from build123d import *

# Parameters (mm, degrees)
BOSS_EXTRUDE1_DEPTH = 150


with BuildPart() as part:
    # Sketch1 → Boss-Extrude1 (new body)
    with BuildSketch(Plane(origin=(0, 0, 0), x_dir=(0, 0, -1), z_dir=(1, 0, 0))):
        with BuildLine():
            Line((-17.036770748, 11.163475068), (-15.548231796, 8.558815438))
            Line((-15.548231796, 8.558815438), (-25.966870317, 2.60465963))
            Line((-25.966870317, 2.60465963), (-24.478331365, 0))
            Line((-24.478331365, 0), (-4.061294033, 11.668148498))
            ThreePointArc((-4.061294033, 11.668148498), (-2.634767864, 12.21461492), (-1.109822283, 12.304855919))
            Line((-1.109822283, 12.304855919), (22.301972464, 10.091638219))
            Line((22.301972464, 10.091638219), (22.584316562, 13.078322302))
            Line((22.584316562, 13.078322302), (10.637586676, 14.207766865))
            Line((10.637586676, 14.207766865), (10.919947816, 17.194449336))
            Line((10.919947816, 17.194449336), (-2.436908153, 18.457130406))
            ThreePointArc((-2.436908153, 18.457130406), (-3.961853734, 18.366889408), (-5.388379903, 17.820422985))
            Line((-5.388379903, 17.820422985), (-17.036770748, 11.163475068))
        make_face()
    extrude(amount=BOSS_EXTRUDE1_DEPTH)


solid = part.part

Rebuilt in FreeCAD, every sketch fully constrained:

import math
import FreeCAD as App
import Part
import Sketcher

V = App.Vector

doc = App.newDocument("Part")
params = doc.addObject("Spreadsheet::Sheet", "Params")
for row, (alias, value) in enumerate([
    ("sketch1_radius", "5 mm"),
    ("sketch1_length", "3 mm"),
    ("sketch1_length2", "12 mm"),
    ("pad1_length", "150 mm"),
], start=1):
    params.set(f"A{row}", alias)
    params.set(f"B{row}", "=" + value)
    params.setAlias(f"B{row}", alias)

body = doc.addObject("PartDesign::Body", "Body")

# Sketch on YZ plane
sketch1 = body.newObject("Sketcher::SketchObject", "Sketch")
sketch1.AttachmentSupport = (doc.getObject("YZ_Plane"), [""])
sketch1.MapMode = "FlatFace"
sketch1.addGeometry([
    Part.LineSegment(V(11.2, 17, 0), V(8.6, 15.5, 0)),  # 0
    Part.LineSegment(V(8.6, 15.5, 0), V(2.6, 26, 0)),  # 1
    Part.LineSegment(V(2.6, 26, 0), V(0, 24.5, 0)),  # 2
    Part.LineSegment(V(0, 24.5, 0), V(11.7, 4.1, 0)),  # 3
    Part.ArcOfCircle(Part.Circle(V(7.3, 1.6, 0), V(0, 0, 1), 5), math.radians(-5), math.radians(30)),  # 4
    Part.LineSegment(V(12.3, 1.1, 0), V(10.1, -22.3, 0)),  # 5
    Part.LineSegment(V(10.1, -22.3, 0), V(13.1, -22.6, 0)),  # 6
    Part.LineSegment(V(13.1, -22.6, 0), V(14.2, -10.6, 0)),  # 7
    Part.LineSegment(V(14.2, -10.6, 0), V(17.2, -10.9, 0)),  # 8
    Part.LineSegment(V(17.2, -10.9, 0), V(18.5, 2.4, 0)),  # 9
    Part.ArcOfCircle(Part.Circle(V(13.5, 2.9, 0), V(0, 0, 1), 5), math.radians(-5), math.radians(30)),  # 10
    Part.LineSegment(V(17.8, 5.4, 0), V(11.2, 17, 0)),  # 11
], False)
sketch1.addConstraint([
    Sketcher.Constraint("Coincident", 0, 2, 1, 1),
    Sketcher.Constraint("Coincident", 1, 2, 2, 1),
    Sketcher.Constraint("Coincident", 2, 2, 3, 1),
    Sketcher.Constraint("Tangent", 3, 2, 4, 2),
    Sketcher.Constraint("Tangent", 4, 1, 5, 1),
    Sketcher.Constraint("Coincident", 5, 2, 6, 1),
    Sketcher.Constraint("Coincident", 6, 2, 7, 1),
    Sketcher.Constraint("Coincident", 7, 2, 8, 1),
    Sketcher.Constraint("Coincident", 8, 2, 9, 1),
    Sketcher.Constraint("Tangent", 9, 2, 10, 1),
    Sketcher.Constraint("Tangent", 10, 2, 11, 1),
    Sketcher.Constraint("Coincident", 11, 2, 0, 1),
    Sketcher.Constraint("Equal", 4, 10),
    Sketcher.Constraint("PointOnObject", 2, 2, -2),
    Sketcher.Constraint("Perpendicular", 0, 1),
    Sketcher.Constraint("Perpendicular", 1, 2),
    Sketcher.Constraint("Perpendicular", 2, 3),
    Sketcher.Constraint("Perpendicular", 5, 6),
    Sketcher.Constraint("Perpendicular", 7, 8),
    Sketcher.Constraint("Perpendicular", 6, 9),
    Sketcher.Constraint("Parallel", 3, 11),
    Sketcher.Constraint("Equal", 0, 2),
    Sketcher.Constraint("Equal", 2, 6),
    Sketcher.Constraint("Equal", 1, 7),
    Sketcher.Constraint("Equal", 6, 8),
    Sketcher.Constraint("Equal", 9, 11),
    Sketcher.Constraint("Radius", 4, 5.0),
    Sketcher.Constraint("Distance", 0, 3.0),
    Sketcher.Constraint("Distance", 1, 12.0),
    Sketcher.Constraint("DistanceX", 6, 2, 10, 3, 0.401001),
    Sketcher.Constraint("DistanceY", 0, 2, 2, 2, 8.9301),
    Sketcher.Constraint("DistanceY", 6, 2, 10, 3, 25.491798),
    Sketcher.Constraint("DistanceX", -1, 1, 4, 3, 7.327049),
    Sketcher.Constraint("DistanceY", -1, 1, 10, 3, 2.907482),
])
sketch1.setExpression("Constraints[26]", "Params.sketch1_radius")
sketch1.setExpression("Constraints[27]", "Params.sketch1_length")
sketch1.setExpression("Constraints[28]", "Params.sketch1_length2")
pad1 = body.newObject("PartDesign::Pad", "Pad")
pad1.Profile = sketch1
pad1.setExpression("Length", "Params.pad1_length")

doc.recompute()
